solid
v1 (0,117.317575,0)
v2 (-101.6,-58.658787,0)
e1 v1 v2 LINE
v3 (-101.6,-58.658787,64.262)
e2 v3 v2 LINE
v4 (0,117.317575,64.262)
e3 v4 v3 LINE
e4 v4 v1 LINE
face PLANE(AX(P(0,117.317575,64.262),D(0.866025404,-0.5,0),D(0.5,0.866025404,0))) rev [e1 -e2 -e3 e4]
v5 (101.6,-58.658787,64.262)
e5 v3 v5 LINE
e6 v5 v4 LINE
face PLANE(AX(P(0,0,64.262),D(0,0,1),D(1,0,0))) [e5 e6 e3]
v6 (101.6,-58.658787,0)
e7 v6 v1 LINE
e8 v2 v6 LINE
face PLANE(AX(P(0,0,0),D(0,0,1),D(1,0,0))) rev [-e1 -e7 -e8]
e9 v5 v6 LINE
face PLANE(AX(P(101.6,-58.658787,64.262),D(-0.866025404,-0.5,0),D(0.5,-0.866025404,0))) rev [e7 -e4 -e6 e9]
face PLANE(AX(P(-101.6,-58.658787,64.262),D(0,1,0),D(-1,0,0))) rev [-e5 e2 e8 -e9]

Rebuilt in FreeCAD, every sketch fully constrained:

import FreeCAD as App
import Part
import Sketcher

V = App.Vector
Q = App.Units.Quantity


def add_polygon(sketch, points):
    """Adds a closed chain of lines whose ends are joined by coincident constraints."""
    first, n = sketch.GeometryCount, len(points)
    for a, b in zip(points, points[1:] + points[:1]):
        sketch.addGeometry(Part.LineSegment(App.Vector(*a, 0), App.Vector(*b, 0)), False)
    for i in range(n):
        sketch.addConstraint(Sketcher.Constraint("Coincident", first + i, 2, first + (i + 1) % n, 1))

doc = App.newDocument("Part")
body = doc.addObject("PartDesign::Body", "Body")

sketch1 = body.newObject("Sketcher::SketchObject", "Sketch")
sketch1.AttachmentSupport = (doc.getObject("XY_Plane"), [""])
sketch1.MapMode = "FlatFace"
add_polygon(sketch1, [(0, 117), (-102, -59), (102, -59)])
sketch1.addConstraint(Sketcher.Constraint("Horizontal", 1))
sketch1.addConstraint(Sketcher.Constraint("PointOnObject", 2, 2, -2))
sketch1.addConstraint(Sketcher.Constraint("Equal", 0, 2))
sketch1.addConstraint(Sketcher.Constraint("DistanceX", 1, 1, 1, 2, Q("8 in")))
sketch1.addConstraint(Sketcher.Constraint("Distance", 0, Q("8 in")))
sketch1.addConstraint(Sketcher.Constraint("DistanceY", 0, 2, -1, 1, Q("58.658787 mm")))
pad1 = body.newObject("PartDesign::Pad", "Pad")
pad1.Profile = sketch1
pad1.Length = Q("2.53 in")

doc.recompute()
